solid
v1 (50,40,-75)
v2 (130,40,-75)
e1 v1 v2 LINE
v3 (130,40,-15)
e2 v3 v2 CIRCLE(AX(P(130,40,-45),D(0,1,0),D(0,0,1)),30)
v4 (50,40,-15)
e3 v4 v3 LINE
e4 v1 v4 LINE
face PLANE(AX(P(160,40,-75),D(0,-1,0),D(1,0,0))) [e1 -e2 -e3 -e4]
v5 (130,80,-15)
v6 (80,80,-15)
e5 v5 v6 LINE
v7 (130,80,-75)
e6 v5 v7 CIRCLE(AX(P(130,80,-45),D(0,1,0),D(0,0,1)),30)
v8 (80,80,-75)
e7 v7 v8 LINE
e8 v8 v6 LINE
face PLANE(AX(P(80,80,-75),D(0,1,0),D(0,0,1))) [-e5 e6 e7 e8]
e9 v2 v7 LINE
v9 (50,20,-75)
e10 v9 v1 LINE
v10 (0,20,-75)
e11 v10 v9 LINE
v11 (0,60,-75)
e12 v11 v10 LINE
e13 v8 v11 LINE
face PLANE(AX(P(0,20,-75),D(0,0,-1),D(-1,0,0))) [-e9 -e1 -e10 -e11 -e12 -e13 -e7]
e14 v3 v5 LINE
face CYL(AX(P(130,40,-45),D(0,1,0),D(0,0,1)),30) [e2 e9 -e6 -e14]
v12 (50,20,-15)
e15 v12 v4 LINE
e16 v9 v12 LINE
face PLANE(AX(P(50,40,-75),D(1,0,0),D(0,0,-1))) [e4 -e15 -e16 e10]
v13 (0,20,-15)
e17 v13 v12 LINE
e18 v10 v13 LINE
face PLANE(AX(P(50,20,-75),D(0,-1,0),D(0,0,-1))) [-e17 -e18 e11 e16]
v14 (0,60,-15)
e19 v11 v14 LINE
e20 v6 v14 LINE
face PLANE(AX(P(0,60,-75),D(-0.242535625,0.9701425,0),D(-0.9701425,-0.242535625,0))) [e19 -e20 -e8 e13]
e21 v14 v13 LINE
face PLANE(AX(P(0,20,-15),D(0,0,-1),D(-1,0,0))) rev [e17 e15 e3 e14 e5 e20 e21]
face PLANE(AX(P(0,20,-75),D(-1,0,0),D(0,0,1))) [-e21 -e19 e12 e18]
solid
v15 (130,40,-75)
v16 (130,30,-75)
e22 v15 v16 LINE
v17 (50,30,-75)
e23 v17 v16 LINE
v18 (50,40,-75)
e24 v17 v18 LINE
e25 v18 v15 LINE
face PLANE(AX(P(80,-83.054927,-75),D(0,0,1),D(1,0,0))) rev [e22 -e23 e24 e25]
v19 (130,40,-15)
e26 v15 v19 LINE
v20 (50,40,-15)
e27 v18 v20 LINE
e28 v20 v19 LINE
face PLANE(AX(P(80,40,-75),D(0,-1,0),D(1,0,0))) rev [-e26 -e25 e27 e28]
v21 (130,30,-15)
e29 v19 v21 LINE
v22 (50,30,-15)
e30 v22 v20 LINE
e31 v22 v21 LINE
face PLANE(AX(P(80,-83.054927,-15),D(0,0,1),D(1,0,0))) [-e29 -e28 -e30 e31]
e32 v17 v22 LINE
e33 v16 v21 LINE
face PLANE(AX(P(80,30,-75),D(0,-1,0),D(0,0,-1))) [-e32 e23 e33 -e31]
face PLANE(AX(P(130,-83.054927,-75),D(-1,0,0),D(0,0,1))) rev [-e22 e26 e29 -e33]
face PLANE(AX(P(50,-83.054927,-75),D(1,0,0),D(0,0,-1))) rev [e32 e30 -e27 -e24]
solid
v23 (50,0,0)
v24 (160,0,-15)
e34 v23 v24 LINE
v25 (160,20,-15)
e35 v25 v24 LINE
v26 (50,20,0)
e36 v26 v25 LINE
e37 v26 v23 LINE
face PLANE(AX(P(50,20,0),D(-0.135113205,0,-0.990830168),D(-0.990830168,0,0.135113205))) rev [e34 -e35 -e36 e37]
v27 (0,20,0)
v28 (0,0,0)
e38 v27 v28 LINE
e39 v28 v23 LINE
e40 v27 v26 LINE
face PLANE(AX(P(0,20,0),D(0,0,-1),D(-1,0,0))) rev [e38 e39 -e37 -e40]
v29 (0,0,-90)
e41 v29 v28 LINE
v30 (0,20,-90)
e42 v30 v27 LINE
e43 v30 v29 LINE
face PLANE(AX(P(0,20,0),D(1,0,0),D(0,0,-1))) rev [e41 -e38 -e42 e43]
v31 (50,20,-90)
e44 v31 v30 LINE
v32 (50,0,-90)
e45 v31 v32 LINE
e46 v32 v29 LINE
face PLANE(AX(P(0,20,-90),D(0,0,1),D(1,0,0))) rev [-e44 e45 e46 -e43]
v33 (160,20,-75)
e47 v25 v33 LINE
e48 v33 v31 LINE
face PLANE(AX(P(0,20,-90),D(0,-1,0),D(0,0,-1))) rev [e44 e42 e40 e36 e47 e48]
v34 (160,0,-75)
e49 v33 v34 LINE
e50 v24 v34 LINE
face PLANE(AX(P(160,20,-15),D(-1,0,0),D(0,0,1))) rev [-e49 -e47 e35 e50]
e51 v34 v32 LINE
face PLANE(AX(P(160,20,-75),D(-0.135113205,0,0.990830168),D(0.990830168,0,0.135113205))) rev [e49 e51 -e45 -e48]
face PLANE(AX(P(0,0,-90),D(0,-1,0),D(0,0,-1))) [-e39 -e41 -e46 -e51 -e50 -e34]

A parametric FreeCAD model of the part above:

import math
import FreeCAD as App
import Part
import Sketcher

V = App.Vector


def add_polygon(sketch, points):
    """Adds a closed chain of lines whose ends are joined by coincident constraints."""
    first, n = sketch.GeometryCount, len(points)
    for a, b in zip(points, points[1:] + points[:1]):
        sketch.addGeometry(Part.LineSegment(App.Vector(*a, 0), App.Vector(*b, 0)), False)
    for i in range(n):
        sketch.addConstraint(Sketcher.Constraint("Coincident", first + i, 2, first + (i + 1) % n, 1))

doc = App.newDocument("Part")
params = doc.addObject("Spreadsheet::Sheet", "Params")
for row, (alias, value) in enumerate([
    ("sketch1_width", "50 mm"),
    ("sketch1_height", "60 mm"),
    ("sketch1_height2", "90 mm"),
    ("pad1_length", "20 mm"),
    ("sketch2_width", "50 mm"),
    ("sketch2_width2", "110 mm"),
    ("sketch2_width3", "80 mm"),
    ("sketch2_height", "40 mm"),
    ("sketch2_height2", "20 mm"),
    ("pad2_length", "60 mm"),
    ("sketch3_radius", "30 mm"),
    ("pocket1_length", "40 mm"),
    ("sketch4_width", "80 mm"),
    ("sketch4_height", "10 mm"),
    ("pad3_length", "60 mm"),
], start=1):
    params.set(f"A{row}", alias)
    params.set(f"B{row}", "=" + value)
    params.setAlias(f"B{row}", alias)

body = doc.addObject("PartDesign::Body", "Body")

# Sketch on XZ plane
sketch1 = body.newObject("Sketcher::SketchObject", "Sketch")
sketch1.AttachmentSupport = (doc.getObject("XZ_Plane"), [""])
sketch1.MapMode = "FlatFace"
add_polygon(sketch1, [(50, 0), (160, -15), (160, -75), (50, -90), (0, -90), (0, 0)])  # lines 0-5
sketch1.addConstraint(Sketcher.Constraint("Vertical", 1))
sketch1.addConstraint(Sketcher.Constraint("Horizontal", 3))
sketch1.addConstraint(Sketcher.Constraint("Vertical", 4))
sketch1.addConstraint(Sketcher.Constraint("Horizontal", 5))
sketch1.addConstraint(Sketcher.Constraint("Coincident", 4, 2, -1, 1))
sketch1.addConstraint(Sketcher.Constraint("Vertical", 2, 2, 5, 2))
sketch1.addConstraint(Sketcher.Constraint("Equal", 0, 2))
sketch1.addConstraint(Sketcher.Constraint("DistanceX", 3, 2, 3, 1, 50.0))
sketch1.addConstraint(Sketcher.Constraint("DistanceY", 1, 2, 1, 1, 60.0))
sketch1.addConstraint(Sketcher.Constraint("DistanceY", 4, 1, 4, 2, 90.0))
sketch1.addConstraint(Sketcher.Constraint("DistanceX", -1, 1, 0, 2, 160.0))
sketch1.setExpression("Constraints[13]", "Params.sketch1_width")
sketch1.setExpression("Constraints[14]", "Params.sketch1_height")
sketch1.setExpression("Constraints[15]", "Params.sketch1_height2")
pad1 = body.newObject("PartDesign::Pad", "Pad")
pad1.Profile = sketch1
pad1.setExpression("Length", "Params.pad1_length")
pad1.Reversed = True
body2 = doc.addObject("PartDesign::Body", "Body001")

# Sketch on XY plane
sketch2 = body2.newObject("Sketcher::SketchObject", "Sketch001")
sketch2.AttachmentSupport = (doc.getObject("XY_Plane001"), [""])
sketch2.MapMode = "FlatFace"
sketch2.AttachmentOffset = App.Placement(V(0, 0, -15), App.Rotation())
add_polygon(sketch2, [(0, 60), (0, 20), (50, 20), (50, 40), (160, 40), (160, 80), (80, 80)])  # lines 0-6
sketch2.addConstraint(Sketcher.Constraint("Vertical", 0))
sketch2.addConstraint(Sketcher.Constraint("Horizontal", 1))
sketch2.addConstraint(Sketcher.Constraint("Vertical", 2))
sketch2.addConstraint(Sketcher.Constraint("Horizontal", 3))
sketch2.addConstraint(Sketcher.Constraint("Vertical", 4))
sketch2.addConstraint(Sketcher.Constraint("Horizontal", 5))
sketch2.addConstraint(Sketcher.Constraint("PointOnObject", 0, 2, -2))
sketch2.addConstraint(Sketcher.Constraint("Equal", 0, 4))
sketch2.addConstraint(Sketcher.Constraint("DistanceX", 1, 1, 1, 2, 50.0))
sketch2.addConstraint(Sketcher.Constraint("DistanceX", 3, 1, 3, 2, 110.0))
sketch2.addConstraint(Sketcher.Constraint("DistanceX", 5, 2, 5, 1, 80.0))
sketch2.addConstraint(Sketcher.Constraint("DistanceY", 0, 2, 0, 1, 40.0))
sketch2.addConstraint(Sketcher.Constraint("DistanceY", 2, 1, 2, 2, 20.0))
sketch2.addConstraint(Sketcher.Constraint("DistanceY", -1, 1, 0, 2, 20.0))
sketch2.setExpression("Constraints[15]", "Params.sketch2_width")
sketch2.setExpression("Constraints[16]", "Params.sketch2_width2")
sketch2.setExpression("Constraints[17]", "Params.sketch2_width3")
sketch2.setExpression("Constraints[18]", "Params.sketch2_height")
sketch2.setExpression("Constraints[19]", "Params.sketch2_height2")
pad2 = body2.newObject("PartDesign::Pad", "Pad001")
pad2.Profile = sketch2
pad2.setExpression("Length", "Params.pad2_length")
pad2.Reversed = True

# Sketch on XZ plane
sketch3 = body2.newObject("Sketcher::SketchObject", "Sketch002")
sketch3.AttachmentSupport = (doc.getObject("XZ_Plane001"), [""])
sketch3.MapMode = "FlatFace"
sketch3.AttachmentOffset = App.Placement(V(0, 0, -80), App.Rotation())
sketch3.addGeometry(Part.LineSegment(V(160, -15, 0), V(160, -45, 0)), False)
sketch3.addGeometry(Part.ArcOfCircle(Part.Circle(V(130, -45, 0), V(0, 0, 1), 30), math.radians(0), math.radians(90)), False)
sketch3.addGeometry(Part.LineSegment(V(130, -15, 0), V(160, -15, 0)), False)
sketch3.addGeometry(Part.LineSegment(V(160, -75, 0), V(130, -75, 0)), False)
sketch3.addGeometry(Part.ArcOfCircle(Part.Circle(V(130, -45, 0), V(0, 0, 1), 30), math.radians(-90), math.radians(0)), False)
sketch3.addGeometry(Part.LineSegment(V(160, -45, 0), V(160, -75, 0)), False)
sketch3.addConstraint(Sketcher.Constraint("Tangent", 0, 2, 1, 1))
sketch3.addConstraint(Sketcher.Constraint("Tangent", 1, 2, 2, 1))
sketch3.addConstraint(Sketcher.Constraint("Coincident", 2, 2, 0, 1))
sketch3.addConstraint(Sketcher.Constraint("Tangent", 3, 2, 4, 1))
sketch3.addConstraint(Sketcher.Constraint("Tangent", 4, 2, 5, 1))
sketch3.addConstraint(Sketcher.Constraint("Coincident", 5, 2, 3, 1))
sketch3.addConstraint(Sketcher.Constraint("Vertical", 0))
sketch3.addConstraint(Sketcher.Constraint("Horizontal", 2))
sketch3.addConstraint(Sketcher.Constraint("Horizontal", 3))
sketch3.addConstraint(Sketcher.Constraint("Vertical", 5))
sketch3.addConstraint(Sketcher.Constraint("Coincident", 4, 3, 1, 3))
sketch3.addConstraint(Sketcher.Constraint("Equal", 1, 4))
sketch3.addConstraint(Sketcher.Constraint("Radius", 1, 30.0))
sketch3.addConstraint(Sketcher.Constraint("DistanceX", -1, 1, 1, 3, 130.0))
sketch3.addConstraint(Sketcher.Constraint("DistanceY", 1, 3, -1, 1, 45.0))
sketch3.setExpression("Constraints[12]", "Params.sketch3_radius")
pocket1 = body2.newObject("PartDesign::Pocket", "Pocket")
pocket1.Profile = sketch3
pocket1.setExpression("Length", "Params.pocket1_length")
pocket1.Reversed = True
body3 = doc.addObject("PartDesign::Body", "Body002")

# Sketch on XY plane
sketch4 = body3.newObject("Sketcher::SketchObject", "Sketch003")
sketch4.AttachmentSupport = (doc.getObject("XY_Plane002"), [""])
sketch4.MapMode = "FlatFace"
sketch4.AttachmentOffset = App.Placement(V(0, 0, -15), App.Rotation())
add_polygon(sketch4, [(50, 40), (50, 30), (130, 30), (130, 40)])  # lines 0-3
sketch4.addConstraint(Sketcher.Constraint("Vertical", 0))
sketch4.addConstraint(Sketcher.Constraint("Horizontal", 1))
sketch4.addConstraint(Sketcher.Constraint("Vertical", 2))
sketch4.addConstraint(Sketcher.Constraint("Horizontal", 3))
sketch4.addConstraint(Sketcher.Constraint("DistanceX", 1, 1, 1, 2, 80.0))
sketch4.addConstraint(Sketcher.Constraint("DistanceY", 0, 2, 0, 1, 10.0))
sketch4.addConstraint(Sketcher.Constraint("DistanceX", -1, 1, 0, 2, 50.0))
sketch4.addConstraint(Sketcher.Constraint("DistanceY", -1, 1, 0, 2, 30.0))
sketch4.setExpression("Constraints[8]", "Params.sketch4_width")
sketch4.setExpression("Constraints[9]", "Params.sketch4_height")
pad3 = body3.newObject("PartDesign::Pad", "Pad002")
pad3.Profile = sketch4
pad3.setExpression("Length", "Params.pad3_length")
pad3.Reversed = True

doc.recompute()
